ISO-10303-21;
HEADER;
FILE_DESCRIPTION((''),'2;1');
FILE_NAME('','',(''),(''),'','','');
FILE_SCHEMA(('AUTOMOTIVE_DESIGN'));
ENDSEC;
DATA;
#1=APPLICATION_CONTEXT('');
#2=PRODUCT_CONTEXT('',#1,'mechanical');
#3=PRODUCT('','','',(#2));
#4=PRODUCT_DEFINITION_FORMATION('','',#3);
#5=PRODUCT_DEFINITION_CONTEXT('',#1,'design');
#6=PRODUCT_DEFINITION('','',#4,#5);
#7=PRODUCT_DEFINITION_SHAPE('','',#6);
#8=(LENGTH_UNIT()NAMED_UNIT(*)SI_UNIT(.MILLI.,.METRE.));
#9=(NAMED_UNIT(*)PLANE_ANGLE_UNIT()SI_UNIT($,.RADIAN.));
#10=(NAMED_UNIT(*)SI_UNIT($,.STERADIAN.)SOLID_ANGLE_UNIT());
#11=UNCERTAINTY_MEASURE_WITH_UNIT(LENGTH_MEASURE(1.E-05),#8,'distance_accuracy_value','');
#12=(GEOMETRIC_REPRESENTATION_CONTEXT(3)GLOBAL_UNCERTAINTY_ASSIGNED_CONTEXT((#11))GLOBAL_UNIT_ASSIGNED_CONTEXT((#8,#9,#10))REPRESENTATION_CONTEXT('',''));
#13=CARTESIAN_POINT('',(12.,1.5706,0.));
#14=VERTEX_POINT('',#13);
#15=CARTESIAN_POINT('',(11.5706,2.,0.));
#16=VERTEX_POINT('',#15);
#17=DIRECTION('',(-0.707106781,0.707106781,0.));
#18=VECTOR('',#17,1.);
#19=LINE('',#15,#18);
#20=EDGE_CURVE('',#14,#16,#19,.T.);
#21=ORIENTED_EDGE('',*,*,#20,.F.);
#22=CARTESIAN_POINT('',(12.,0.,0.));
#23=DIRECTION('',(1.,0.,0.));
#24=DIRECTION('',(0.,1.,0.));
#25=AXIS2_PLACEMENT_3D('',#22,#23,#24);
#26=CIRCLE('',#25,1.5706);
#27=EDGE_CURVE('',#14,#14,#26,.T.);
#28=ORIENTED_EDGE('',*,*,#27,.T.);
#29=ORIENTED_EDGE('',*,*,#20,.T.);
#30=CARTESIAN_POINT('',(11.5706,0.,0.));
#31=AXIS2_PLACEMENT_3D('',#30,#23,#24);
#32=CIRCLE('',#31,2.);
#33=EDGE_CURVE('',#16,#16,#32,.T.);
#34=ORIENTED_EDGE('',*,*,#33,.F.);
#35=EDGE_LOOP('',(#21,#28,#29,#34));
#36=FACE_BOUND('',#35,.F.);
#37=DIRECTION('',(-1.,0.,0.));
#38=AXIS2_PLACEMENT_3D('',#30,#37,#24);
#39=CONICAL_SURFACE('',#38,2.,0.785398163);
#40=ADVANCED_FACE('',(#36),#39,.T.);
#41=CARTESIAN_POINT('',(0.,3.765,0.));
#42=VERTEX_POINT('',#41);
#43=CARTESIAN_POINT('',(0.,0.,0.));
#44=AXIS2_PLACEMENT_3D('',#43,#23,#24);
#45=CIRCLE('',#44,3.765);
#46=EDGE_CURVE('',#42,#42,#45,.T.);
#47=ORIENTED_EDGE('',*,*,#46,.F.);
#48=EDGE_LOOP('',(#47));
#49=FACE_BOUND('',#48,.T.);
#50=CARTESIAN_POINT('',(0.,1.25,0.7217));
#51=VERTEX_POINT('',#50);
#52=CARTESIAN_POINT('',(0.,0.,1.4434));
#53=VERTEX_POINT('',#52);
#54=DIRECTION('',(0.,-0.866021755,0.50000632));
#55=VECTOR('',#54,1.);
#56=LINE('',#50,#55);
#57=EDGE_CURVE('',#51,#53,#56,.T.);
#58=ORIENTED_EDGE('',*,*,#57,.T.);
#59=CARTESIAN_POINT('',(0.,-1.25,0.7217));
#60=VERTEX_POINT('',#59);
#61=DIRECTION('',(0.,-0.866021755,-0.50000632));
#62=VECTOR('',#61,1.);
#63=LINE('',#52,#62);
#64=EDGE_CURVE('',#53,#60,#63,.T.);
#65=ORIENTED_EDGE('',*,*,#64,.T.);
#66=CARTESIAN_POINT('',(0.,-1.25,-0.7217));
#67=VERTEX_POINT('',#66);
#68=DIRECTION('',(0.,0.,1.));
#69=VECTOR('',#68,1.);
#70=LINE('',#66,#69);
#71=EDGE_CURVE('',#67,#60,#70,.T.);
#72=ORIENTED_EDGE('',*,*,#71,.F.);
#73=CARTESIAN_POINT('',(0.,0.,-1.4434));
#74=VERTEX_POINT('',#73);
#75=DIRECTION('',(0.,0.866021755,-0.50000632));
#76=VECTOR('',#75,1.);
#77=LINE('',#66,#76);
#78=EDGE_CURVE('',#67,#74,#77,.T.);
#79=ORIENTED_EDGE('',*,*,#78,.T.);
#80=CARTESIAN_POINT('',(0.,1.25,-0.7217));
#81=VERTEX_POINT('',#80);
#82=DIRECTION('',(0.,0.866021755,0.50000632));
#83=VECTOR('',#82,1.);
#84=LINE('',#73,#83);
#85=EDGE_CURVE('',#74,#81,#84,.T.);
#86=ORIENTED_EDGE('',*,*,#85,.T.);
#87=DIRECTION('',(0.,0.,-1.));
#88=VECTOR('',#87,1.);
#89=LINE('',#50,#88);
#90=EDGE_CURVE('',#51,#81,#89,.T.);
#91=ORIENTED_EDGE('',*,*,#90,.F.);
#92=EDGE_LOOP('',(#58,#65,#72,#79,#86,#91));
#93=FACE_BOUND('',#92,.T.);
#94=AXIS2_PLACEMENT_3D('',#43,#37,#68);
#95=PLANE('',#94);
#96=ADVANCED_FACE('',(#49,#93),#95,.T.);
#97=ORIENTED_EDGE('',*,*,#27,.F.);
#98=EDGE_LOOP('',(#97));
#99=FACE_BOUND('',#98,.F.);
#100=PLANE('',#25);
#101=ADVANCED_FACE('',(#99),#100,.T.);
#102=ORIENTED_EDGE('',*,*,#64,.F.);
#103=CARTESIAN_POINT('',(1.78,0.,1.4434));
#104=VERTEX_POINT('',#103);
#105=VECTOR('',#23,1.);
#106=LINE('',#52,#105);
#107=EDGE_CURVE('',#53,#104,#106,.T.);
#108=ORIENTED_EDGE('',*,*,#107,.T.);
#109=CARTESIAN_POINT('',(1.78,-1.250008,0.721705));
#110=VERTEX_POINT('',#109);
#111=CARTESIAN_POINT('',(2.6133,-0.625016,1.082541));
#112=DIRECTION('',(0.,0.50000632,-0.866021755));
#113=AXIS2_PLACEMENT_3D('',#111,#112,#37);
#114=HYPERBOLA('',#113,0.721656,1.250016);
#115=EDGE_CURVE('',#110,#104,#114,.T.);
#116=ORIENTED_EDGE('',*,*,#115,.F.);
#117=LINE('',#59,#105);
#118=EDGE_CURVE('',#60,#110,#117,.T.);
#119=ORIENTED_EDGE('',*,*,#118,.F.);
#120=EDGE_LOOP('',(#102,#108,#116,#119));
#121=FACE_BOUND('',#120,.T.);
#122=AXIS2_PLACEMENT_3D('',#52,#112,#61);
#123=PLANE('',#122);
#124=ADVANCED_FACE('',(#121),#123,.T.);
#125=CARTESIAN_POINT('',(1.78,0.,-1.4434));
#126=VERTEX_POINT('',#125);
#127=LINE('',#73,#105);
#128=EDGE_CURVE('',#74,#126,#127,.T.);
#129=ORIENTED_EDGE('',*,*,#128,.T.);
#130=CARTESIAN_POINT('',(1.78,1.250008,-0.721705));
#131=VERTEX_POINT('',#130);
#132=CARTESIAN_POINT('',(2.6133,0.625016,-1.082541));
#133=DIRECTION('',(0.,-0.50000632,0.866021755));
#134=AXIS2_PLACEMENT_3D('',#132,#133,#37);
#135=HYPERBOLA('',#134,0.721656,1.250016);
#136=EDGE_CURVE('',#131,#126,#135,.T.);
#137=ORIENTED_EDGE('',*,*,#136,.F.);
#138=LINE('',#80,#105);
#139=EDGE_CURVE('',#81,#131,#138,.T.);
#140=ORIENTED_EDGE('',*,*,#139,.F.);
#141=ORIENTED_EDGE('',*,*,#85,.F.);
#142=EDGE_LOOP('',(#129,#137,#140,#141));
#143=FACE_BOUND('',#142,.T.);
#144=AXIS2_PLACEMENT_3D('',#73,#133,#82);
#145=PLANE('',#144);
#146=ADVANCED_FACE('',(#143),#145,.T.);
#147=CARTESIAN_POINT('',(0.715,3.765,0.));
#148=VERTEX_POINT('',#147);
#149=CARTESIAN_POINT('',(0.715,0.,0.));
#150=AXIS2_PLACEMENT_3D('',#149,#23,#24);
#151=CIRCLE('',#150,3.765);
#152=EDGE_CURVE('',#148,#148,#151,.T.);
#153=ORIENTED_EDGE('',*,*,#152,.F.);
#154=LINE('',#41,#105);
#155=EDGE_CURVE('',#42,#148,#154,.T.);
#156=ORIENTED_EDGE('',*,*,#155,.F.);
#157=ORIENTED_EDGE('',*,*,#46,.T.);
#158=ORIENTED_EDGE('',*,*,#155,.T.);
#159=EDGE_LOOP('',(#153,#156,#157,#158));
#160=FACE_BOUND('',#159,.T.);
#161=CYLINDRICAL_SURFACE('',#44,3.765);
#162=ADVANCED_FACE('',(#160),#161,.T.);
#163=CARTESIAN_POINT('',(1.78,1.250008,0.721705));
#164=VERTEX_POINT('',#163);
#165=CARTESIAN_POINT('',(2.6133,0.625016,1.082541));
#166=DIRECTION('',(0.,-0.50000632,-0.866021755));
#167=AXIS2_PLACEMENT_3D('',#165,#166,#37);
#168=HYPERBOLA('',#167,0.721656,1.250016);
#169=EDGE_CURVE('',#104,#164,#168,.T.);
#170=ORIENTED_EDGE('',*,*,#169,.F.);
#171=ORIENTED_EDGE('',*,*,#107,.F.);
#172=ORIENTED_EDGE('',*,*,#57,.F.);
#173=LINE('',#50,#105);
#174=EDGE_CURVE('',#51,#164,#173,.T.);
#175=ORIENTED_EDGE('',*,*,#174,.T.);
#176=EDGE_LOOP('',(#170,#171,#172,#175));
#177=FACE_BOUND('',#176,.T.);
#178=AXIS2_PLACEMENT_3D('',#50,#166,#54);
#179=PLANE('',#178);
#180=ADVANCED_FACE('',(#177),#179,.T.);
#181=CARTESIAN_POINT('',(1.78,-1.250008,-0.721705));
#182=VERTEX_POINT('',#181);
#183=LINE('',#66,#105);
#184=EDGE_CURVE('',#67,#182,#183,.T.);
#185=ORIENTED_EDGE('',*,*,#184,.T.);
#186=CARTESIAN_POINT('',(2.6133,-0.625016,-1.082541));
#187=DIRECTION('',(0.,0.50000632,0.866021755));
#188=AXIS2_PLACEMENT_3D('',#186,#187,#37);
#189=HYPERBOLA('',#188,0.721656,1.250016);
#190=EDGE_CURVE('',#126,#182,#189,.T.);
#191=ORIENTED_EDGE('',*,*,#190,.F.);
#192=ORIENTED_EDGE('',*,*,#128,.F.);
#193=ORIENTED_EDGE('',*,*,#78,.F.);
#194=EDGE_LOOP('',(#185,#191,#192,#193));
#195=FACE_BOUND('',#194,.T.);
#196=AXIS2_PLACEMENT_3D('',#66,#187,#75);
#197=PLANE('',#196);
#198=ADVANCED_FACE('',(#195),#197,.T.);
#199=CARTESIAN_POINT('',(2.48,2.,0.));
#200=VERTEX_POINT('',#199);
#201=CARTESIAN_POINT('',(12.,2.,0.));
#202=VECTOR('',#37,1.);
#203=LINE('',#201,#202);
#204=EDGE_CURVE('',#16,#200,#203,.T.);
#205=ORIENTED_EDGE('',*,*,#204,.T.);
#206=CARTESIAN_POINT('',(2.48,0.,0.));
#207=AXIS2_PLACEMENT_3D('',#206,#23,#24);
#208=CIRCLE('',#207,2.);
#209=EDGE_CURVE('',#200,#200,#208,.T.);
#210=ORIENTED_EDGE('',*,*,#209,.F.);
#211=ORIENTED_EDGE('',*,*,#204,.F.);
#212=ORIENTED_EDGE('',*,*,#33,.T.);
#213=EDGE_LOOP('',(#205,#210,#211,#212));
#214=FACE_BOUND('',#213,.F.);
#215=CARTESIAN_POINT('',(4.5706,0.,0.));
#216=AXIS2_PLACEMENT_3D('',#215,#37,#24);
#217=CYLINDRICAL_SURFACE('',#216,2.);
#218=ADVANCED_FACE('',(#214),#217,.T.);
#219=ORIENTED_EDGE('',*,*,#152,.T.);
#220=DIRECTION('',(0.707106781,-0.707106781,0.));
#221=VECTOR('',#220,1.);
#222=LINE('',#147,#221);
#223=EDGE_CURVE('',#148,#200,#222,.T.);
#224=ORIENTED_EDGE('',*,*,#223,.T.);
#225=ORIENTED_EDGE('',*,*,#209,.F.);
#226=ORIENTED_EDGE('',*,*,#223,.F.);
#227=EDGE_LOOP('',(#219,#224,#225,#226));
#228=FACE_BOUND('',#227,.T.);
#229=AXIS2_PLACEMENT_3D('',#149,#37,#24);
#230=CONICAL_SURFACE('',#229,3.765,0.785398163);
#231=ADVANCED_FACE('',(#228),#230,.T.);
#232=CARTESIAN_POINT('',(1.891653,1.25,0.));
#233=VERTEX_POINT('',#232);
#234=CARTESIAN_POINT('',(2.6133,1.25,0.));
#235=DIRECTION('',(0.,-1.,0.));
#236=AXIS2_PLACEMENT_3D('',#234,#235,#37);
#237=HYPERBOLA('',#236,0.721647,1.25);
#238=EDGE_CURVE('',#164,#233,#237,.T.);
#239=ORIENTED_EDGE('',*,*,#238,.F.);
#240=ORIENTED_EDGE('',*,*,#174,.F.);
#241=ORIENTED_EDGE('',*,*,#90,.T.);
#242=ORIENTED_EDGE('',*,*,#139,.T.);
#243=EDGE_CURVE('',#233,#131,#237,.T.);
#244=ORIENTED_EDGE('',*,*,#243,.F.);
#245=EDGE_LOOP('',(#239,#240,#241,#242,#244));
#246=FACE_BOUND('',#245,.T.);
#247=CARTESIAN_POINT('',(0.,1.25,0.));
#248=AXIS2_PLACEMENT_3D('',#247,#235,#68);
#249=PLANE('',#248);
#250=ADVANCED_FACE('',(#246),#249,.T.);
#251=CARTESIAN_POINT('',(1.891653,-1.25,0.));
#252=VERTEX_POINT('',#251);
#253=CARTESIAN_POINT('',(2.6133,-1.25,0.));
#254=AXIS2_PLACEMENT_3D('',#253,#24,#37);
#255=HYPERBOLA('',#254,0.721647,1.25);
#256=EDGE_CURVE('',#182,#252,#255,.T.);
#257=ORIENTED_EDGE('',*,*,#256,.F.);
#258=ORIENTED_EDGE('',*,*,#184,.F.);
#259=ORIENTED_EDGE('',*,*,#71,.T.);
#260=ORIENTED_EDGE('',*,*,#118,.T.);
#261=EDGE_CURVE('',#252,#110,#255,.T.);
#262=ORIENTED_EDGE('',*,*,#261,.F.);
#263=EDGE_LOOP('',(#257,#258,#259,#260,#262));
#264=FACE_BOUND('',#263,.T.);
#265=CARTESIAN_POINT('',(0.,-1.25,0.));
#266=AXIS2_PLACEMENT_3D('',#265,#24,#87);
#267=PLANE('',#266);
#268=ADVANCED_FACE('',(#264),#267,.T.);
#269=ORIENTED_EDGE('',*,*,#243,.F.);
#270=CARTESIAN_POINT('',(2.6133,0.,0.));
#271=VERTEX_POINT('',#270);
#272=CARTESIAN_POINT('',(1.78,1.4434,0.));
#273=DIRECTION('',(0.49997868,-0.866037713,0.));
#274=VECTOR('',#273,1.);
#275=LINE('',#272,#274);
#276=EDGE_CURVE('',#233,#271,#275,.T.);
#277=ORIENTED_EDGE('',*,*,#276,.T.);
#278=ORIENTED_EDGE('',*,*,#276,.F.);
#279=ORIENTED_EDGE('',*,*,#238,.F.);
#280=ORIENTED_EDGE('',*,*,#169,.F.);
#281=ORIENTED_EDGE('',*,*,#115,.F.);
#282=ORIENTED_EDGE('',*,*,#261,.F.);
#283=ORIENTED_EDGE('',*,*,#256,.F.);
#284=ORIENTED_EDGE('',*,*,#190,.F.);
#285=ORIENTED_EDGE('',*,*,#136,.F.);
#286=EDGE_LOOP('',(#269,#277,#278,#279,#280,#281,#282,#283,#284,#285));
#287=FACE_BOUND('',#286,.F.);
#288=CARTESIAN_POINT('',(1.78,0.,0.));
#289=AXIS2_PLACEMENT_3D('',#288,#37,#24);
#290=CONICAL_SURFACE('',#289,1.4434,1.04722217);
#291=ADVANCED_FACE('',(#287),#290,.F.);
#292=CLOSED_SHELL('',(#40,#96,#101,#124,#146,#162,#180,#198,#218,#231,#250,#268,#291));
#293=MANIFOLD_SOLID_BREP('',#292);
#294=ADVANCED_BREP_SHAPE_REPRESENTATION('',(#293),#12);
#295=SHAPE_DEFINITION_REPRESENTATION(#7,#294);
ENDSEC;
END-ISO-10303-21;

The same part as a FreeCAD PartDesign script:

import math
import FreeCAD as App
import Part
import Sketcher
from FreeCAD import Vector
Q = App.Units.Quantity


def edges_at(feature, points):
    """Names of the edges that pass closest to the given points."""
    edges = feature.Shape.Edges
    near = lambda p: min(range(len(edges)), key=lambda i: edges[i].distToShape(Part.Vertex(*p))[0])
    return sorted({f"Edge{near(p) + 1}" for p in points})

doc = App.newDocument("Part")
body = doc.addObject("PartDesign::Body", "Body")

# Sketch on XY plane
sketch1 = body.newObject("Sketcher::SketchObject", "Sketch")
sketch1.AttachmentSupport = (doc.getObject("XY_Plane"), [""])
sketch1.MapMode = "FlatFace"
sketch1.addGeometry(Part.LineSegment(Vector(2.6, 0, 0), Vector(12, 0, 0)), False)
sketch1.addGeometry(Part.LineSegment(Vector(12, 0, 0), Vector(12, 2, 0)), False)
sketch1.addGeometry(Part.LineSegment(Vector(12, 2, 0), Vector(2.5, 2, 0)), False)
sketch1.addGeometry(Part.LineSegment(Vector(2.5, 2, 0), Vector(0.7, 3.8, 0)), False)
sketch1.addGeometry(Part.LineSegment(Vector(0.7, 3.8, 0), Vector(0, 3.8, 0)), False)
sketch1.addGeometry(Part.LineSegment(Vector(0, 3.8, 0), Vector(0, 1.4, 0)), False)
sketch1.addGeometry(Part.LineSegment(Vector(0, 1.4, 0), Vector(1.8, 1.4, 0)), False)
sketch1.addGeometry(Part.LineSegment(Vector(1.8, 1.4, 0), Vector(2.6, 0, 0)), False)
sketch1.addConstraint(Sketcher.Constraint("Coincident", 0, 2, 1, 1))
sketch1.addConstraint(Sketcher.Constraint("Coincident", 1, 2, 2, 1))
sketch1.addConstraint(Sketcher.Constraint("Coincident", 2, 2, 3, 1))
sketch1.addConstraint(Sketcher.Constraint("Coincident", 3, 2, 4, 1))
sketch1.addConstraint(Sketcher.Constraint("Coincident", 4, 2, 5, 1))
sketch1.addConstraint(Sketcher.Constraint("Coincident", 5, 2, 6, 1))
sketch1.addConstraint(Sketcher.Constraint("Coincident", 6, 2, 7, 1))
sketch1.addConstraint(Sketcher.Constraint("Coincident", 7, 2, 0, 1))
sketch1.addConstraint(Sketcher.Constraint("Horizontal", 0))
sketch1.addConstraint(Sketcher.Constraint("Vertical", 1))
sketch1.addConstraint(Sketcher.Constraint("Horizontal", 2))
sketch1.addConstraint(Sketcher.Constraint("Horizontal", 4))
sketch1.addConstraint(Sketcher.Constraint("Vertical", 5))
sketch1.addConstraint(Sketcher.Constraint("Horizontal", 6))
sketch1.addConstraint(Sketcher.Constraint("PointOnObject", 0, 2, -1))
sketch1.addConstraint(Sketcher.Constraint("PointOnObject", 4, 2, -2))
sketch1.addConstraint(Sketcher.Constraint("DistanceX", -1, 1, 0, 2, 12.0))
sketch1.addConstraint(Sketcher.Constraint("DistanceX", 6, 1, 6, 2, 1.78))
sketch1.addConstraint(Sketcher.Constraint("DistanceY", 1, 1, 1, 2, 2.0))
sketch1.addConstraint(Sketcher.Constraint("DistanceX", -1, 1, 2, 2, 2.48))
sketch1.addConstraint(Sketcher.Constraint("Angle", 3, Q("135 deg")))
sketch1.addConstraint(Sketcher.Constraint("DistanceX", 4, 2, 4, 1, 0.715))
sketch1.addConstraint(Sketcher.Constraint("DistanceX", 0, 1, 0, 2, 9.3867))
sketch1.addConstraint(Sketcher.Constraint("DistanceY", 5, 2, 5, 1, 2.3216))
revolution = body.newObject("PartDesign::Revolution", "Revolution")
revolution.Profile = sketch1
revolution.ReferenceAxis = (sketch1, ["H_Axis"])
revolution.Angle = 360

# Sketch on YZ plane
sketch2 = body.newObject("Sketcher::SketchObject", "Sketch001")
sketch2.AttachmentSupport = (doc.getObject("YZ_Plane"), [""])
sketch2.MapMode = "FlatFace"
sketch2.addGeometry(Part.LineSegment(Vector(1.2, 0.7, 0), Vector(0, 1.4, 0)), False)
sketch2.addGeometry(Part.ArcOfCircle(Part.Circle(Vector(0, 0, 0), Vector(0, 0, 1), 1.4), math.radians(30), math.radians(90)), False)
sketch2.addGeometry(Part.ArcOfCircle(Part.Circle(Vector(0, 0, 0), Vector(0, 0, 1), 1.4), math.radians(90), math.radians(150)), False)
sketch2.addGeometry(Part.LineSegment(Vector(0, 1.4, 0), Vector(-1.2, 0.7, 0)), False)
sketch2.addGeometry(Part.ArcOfCircle(Part.Circle(Vector(0, 0, 0), Vector(0, 0, 1), 1.4), math.radians(-30), math.radians(30)), False)
sketch2.addGeometry(Part.LineSegment(Vector(1.2, 0.7, 0), Vector(1.2, -0.7, 0)), False)
sketch2.addGeometry(Part.LineSegment(Vector(-1.2, 0.7, 0), Vector(-1.2, -0.7, 0)), False)
sketch2.addGeometry(Part.ArcOfCircle(Part.Circle(Vector(0, 0, 0), Vector(0, 0, 1), 1.4), math.radians(150), math.radians(210)), False)
sketch2.addGeometry(Part.LineSegment(Vector(-1.2, -0.7, 0), Vector(0, -1.4, 0)), False)
sketch2.addGeometry(Part.ArcOfCircle(Part.Circle(Vector(0, 0, 0), Vector(0, 0, 1), 1.4), math.radians(-150), math.radians(-90)), False)
sketch2.addGeometry(Part.ArcOfCircle(Part.Circle(Vector(0, 0, 0), Vector(0, 0, 1), 1.4), math.radians(-90), math.radians(-30)), False)
sketch2.addGeometry(Part.LineSegment(Vector(0, -1.4, 0), Vector(1.2, -0.7, 0)), False)
sketch2.addConstraint(Sketcher.Constraint("Coincident", 0, 1, 1, 1))
sketch2.addConstraint(Sketcher.Constraint("Coincident", 1, 2, 0, 2))
sketch2.addConstraint(Sketcher.Constraint("Coincident", 2, 1, 3, 1))
sketch2.addConstraint(Sketcher.Constraint("Coincident", 3, 2, 2, 2))
sketch2.addConstraint(Sketcher.Constraint("Coincident", 4, 1, 5, 2))
sketch2.addConstraint(Sketcher.Constraint("Coincident", 5, 1, 4, 2))
sketch2.addConstraint(Sketcher.Constraint("Coincident", 6, 1, 7, 1))
sketch2.addConstraint(Sketcher.Constraint("Coincident", 7, 2, 6, 2))
sketch2.addConstraint(Sketcher.Constraint("Coincident", 8, 1, 9, 1))
sketch2.addConstraint(Sketcher.Constraint("Coincident", 9, 2, 8, 2))
sketch2.addConstraint(Sketcher.Constraint("Coincident", 10, 1, 11, 1))
sketch2.addConstraint(Sketcher.Constraint("Coincident", 11, 2, 10, 2))
sketch2.addConstraint(Sketcher.Constraint("Vertical", 5))
sketch2.addConstraint(Sketcher.Constraint("Vertical", 6))
sketch2.addConstraint(Sketcher.Constraint("Coincident", 1, 3, -1, 1))
sketch2.addConstraint(Sketcher.Constraint("Coincident", 2, 3, -1, 1))
sketch2.addConstraint(Sketcher.Constraint("Coincident", 4, 3, -1, 1))
sketch2.addConstraint(Sketcher.Constraint("Coincident", 7, 3, -1, 1))
sketch2.addConstraint(Sketcher.Constraint("Coincident", 9, 3, -1, 1))
sketch2.addConstraint(Sketcher.Constraint("Coincident", 10, 3, -1, 1))
sketch2.addConstraint(Sketcher.Constraint("Coincident", 2, 1, 1, 2))
sketch2.addConstraint(Sketcher.Constraint("Coincident", 5, 1, 0, 1))
sketch2.addConstraint(Sketcher.Constraint("Coincident", 6, 1, 3, 2))
sketch2.addConstraint(Sketcher.Constraint("Coincident", 8, 1, 7, 2))
sketch2.addConstraint(Sketcher.Constraint("Coincident", 10, 1, 9, 2))
sketch2.addConstraint(Sketcher.Constraint("PointOnObject", 1, 2, -2))
sketch2.addConstraint(Sketcher.Constraint("PointOnObject", 9, 2, -2))
sketch2.addConstraint(Sketcher.Constraint("Parallel", 0, 8))
sketch2.addConstraint(Sketcher.Constraint("Parallel", 3, 11))
sketch2.addConstraint(Sketcher.Constraint("Angle", 0, Q("149.9996 deg")))
sketch2.addConstraint(Sketcher.Constraint("Radius", 1, 1.4434))
pad1 = body.newObject("PartDesign::Pad", "Pad")
pad1.Profile = sketch2
pad1.Type = "UpToFirst"
doc.recompute()

chamfer = body.newObject("PartDesign::Chamfer", "Chamfer")
chamfer.Base = (pad1, edges_at(pad1, [(12, -2, 0)]))
chamfer.ChamferType = "Two distances"
chamfer.Size = 0.4294
chamfer.Size2 = 0.4294

doc.recompute()
